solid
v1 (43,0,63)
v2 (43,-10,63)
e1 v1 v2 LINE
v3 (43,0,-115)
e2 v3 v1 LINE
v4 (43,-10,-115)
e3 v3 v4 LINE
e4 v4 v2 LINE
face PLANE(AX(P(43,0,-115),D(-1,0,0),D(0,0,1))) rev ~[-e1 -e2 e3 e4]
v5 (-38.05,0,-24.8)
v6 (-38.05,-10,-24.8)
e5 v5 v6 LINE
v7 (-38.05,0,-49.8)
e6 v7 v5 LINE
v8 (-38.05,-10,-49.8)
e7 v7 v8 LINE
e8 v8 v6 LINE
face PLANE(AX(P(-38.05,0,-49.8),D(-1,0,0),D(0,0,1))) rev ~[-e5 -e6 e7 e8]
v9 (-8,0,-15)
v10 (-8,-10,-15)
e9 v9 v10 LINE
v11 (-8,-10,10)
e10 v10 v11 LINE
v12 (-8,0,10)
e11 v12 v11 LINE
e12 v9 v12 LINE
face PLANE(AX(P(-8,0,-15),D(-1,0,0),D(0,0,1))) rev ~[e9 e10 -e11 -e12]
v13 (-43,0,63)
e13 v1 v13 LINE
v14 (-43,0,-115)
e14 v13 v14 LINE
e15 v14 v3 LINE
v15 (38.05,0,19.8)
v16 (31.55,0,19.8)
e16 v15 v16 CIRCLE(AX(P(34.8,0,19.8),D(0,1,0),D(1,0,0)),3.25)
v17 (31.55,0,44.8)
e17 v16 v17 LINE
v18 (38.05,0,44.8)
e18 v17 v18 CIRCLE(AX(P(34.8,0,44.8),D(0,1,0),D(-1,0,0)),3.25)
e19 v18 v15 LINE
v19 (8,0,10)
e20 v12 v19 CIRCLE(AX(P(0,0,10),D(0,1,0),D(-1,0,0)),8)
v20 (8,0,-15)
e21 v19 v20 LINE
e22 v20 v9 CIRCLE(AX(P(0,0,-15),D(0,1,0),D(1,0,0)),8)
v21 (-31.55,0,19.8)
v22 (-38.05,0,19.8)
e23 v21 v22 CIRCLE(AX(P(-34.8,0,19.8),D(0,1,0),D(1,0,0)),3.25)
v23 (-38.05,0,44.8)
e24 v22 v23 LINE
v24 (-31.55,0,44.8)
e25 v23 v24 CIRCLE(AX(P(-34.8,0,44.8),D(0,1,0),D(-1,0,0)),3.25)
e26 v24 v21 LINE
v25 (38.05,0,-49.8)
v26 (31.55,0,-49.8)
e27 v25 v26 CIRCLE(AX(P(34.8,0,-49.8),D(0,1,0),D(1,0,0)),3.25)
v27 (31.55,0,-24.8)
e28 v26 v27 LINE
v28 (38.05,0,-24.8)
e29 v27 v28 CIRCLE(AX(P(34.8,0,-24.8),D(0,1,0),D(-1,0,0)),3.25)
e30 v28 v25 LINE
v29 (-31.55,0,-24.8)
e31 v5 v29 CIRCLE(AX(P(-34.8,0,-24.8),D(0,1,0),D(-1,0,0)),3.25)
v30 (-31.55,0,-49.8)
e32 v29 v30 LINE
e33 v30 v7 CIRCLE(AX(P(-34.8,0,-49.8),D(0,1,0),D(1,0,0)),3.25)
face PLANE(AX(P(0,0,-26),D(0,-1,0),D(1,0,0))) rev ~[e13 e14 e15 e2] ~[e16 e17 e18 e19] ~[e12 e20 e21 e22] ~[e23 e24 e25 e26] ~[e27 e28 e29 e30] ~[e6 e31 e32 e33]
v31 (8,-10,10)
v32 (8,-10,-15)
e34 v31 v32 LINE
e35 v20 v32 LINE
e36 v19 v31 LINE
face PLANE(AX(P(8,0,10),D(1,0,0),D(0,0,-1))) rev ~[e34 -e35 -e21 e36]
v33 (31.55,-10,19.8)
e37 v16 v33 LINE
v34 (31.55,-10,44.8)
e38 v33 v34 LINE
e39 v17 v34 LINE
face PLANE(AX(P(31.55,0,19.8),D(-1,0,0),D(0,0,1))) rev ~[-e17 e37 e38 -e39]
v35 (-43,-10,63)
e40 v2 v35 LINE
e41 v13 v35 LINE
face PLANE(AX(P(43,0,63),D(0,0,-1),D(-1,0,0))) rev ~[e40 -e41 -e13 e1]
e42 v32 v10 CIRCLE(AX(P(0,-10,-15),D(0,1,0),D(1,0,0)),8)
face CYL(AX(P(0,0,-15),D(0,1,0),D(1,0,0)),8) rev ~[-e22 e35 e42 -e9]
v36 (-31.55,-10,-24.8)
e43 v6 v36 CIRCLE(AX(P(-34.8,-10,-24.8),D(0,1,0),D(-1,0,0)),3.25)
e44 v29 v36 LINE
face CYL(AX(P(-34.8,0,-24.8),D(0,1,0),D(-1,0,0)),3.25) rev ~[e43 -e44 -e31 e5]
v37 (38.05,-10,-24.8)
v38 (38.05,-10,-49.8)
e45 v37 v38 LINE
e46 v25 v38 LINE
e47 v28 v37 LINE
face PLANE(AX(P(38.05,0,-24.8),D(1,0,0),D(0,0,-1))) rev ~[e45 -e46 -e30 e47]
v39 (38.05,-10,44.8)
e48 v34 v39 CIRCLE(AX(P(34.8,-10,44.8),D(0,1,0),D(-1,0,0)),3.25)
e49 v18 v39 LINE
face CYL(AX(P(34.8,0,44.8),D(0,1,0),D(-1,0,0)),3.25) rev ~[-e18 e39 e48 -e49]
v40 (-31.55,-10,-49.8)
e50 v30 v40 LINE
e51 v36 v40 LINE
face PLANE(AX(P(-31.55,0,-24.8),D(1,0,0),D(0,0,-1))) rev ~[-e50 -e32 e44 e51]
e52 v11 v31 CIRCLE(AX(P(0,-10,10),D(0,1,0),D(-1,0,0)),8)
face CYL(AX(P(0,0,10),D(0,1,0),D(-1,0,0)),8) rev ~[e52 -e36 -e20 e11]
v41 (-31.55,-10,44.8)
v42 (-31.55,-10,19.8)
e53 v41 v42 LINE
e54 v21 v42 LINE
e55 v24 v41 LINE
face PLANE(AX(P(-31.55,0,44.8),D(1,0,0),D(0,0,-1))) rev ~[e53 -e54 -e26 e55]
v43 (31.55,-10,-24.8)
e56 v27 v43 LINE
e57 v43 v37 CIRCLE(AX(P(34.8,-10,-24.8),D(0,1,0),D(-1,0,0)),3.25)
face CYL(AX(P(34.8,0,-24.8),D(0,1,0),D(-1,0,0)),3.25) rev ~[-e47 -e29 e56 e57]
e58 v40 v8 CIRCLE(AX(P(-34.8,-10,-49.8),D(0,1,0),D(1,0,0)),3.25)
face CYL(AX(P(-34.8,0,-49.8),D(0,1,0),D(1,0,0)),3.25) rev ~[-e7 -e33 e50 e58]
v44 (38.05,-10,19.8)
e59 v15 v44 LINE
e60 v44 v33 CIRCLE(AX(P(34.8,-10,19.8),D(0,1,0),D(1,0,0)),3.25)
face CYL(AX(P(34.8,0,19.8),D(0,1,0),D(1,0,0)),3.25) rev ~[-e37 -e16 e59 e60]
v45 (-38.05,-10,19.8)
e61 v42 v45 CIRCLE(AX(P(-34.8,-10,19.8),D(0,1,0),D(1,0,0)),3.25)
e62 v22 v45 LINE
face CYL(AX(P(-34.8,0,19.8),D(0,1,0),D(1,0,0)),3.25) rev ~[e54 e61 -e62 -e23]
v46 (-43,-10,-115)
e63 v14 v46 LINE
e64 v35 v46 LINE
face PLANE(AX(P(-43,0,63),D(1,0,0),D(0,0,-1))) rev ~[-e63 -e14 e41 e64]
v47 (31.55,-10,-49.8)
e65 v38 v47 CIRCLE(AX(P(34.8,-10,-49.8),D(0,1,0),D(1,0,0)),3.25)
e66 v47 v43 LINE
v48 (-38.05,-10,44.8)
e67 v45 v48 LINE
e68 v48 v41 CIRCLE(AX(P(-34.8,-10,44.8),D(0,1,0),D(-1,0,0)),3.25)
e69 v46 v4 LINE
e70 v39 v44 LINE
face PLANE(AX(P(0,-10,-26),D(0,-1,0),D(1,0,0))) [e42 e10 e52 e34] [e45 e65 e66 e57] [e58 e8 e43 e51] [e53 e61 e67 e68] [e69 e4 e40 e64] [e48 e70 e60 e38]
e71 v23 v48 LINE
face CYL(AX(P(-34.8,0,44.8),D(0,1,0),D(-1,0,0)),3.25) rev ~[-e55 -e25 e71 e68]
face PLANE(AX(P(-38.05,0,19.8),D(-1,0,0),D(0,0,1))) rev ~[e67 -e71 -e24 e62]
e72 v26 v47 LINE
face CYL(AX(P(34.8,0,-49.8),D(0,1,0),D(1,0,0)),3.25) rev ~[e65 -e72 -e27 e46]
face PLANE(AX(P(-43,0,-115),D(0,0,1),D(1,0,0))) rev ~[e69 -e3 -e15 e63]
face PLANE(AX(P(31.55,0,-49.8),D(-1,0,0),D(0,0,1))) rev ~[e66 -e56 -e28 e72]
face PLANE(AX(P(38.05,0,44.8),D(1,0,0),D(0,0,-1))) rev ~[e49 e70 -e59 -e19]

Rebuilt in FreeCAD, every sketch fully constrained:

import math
import FreeCAD as App
import Part
import Sketcher
from FreeCAD import Vector

doc = App.newDocument("Part")
body = doc.addObject("PartDesign::Body", "Body")

# Sketch on XZ plane
sketch1 = body.newObject("Sketcher::SketchObject", "Sketch")
sketch1.AttachmentSupport = (doc.getObject("XZ_Plane"), [""])
sketch1.MapMode = "FlatFace"
sketch1.addGeometry(Part.LineSegment(Vector(-43, 63, 0), Vector(-43, -115, 0)), False)
sketch1.addGeometry(Part.LineSegment(Vector(-43, -115, 0), Vector(43, -115, 0)), False)
sketch1.addGeometry(Part.LineSegment(Vector(43, -115, 0), Vector(43, 63, 0)), False)
sketch1.addGeometry(Part.LineSegment(Vector(43, 63, 0), Vector(-43, 63, 0)), False)
sketch1.addGeometry(Part.LineSegment(Vector(-38.05, -49.8, 0), Vector(-38.05, -24.8, 0)), False)
sketch1.addGeometry(Part.ArcOfCircle(Part.Circle(Vector(-34.8, -24.8, 0), Vector(0, 0, 1), 3.25), math.radians(0), math.radians(180)), False)
sketch1.addGeometry(Part.LineSegment(Vector(-31.55, -24.8, 0), Vector(-31.55, -49.8, 0)), False)
sketch1.addGeometry(Part.ArcOfCircle(Part.Circle(Vector(-34.8, -49.8, 0), Vector(0, 0, 1), 3.25), math.radians(180), math.radians(360)), False)
sketch1.addGeometry(Part.LineSegment(Vector(31.55, -49.8, 0), Vector(31.55, -24.8, 0)), False)
sketch1.addGeometry(Part.ArcOfCircle(Part.Circle(Vector(34.8, -24.8, 0), Vector(0, 0, 1), 3.25), math.radians(0), math.radians(180)), False)
sketch1.addGeometry(Part.LineSegment(Vector(38.05, -24.8, 0), Vector(38.05, -49.8, 0)), False)
sketch1.addGeometry(Part.ArcOfCircle(Part.Circle(Vector(34.8, -49.8, 0), Vector(0, 0, 1), 3.25), math.radians(180), math.radians(360)), False)
sketch1.addGeometry(Part.ArcOfCircle(Part.Circle(Vector(-34.8, 44.8, 0), Vector(0, 0, 1), 3.25), math.radians(0), math.radians(180)), False)
sketch1.addGeometry(Part.LineSegment(Vector(-31.55, 44.8, 0), Vector(-31.55, 19.8, 0)), False)
sketch1.addGeometry(Part.ArcOfCircle(Part.Circle(Vector(-34.8, 19.8, 0), Vector(0, 0, 1), 3.25), math.radians(180), math.radians(360)), False)
sketch1.addGeometry(Part.LineSegment(Vector(-38.05, 19.8, 0), Vector(-38.05, 44.8, 0)), False)
sketch1.addGeometry(Part.ArcOfCircle(Part.Circle(Vector(0, 10, 0), Vector(0, 0, 1), 8), math.radians(0), math.radians(180)), False)
sketch1.addGeometry(Part.LineSegment(Vector(8, 10, 0), Vector(8, -15, 0)), False)
sketch1.addGeometry(Part.ArcOfCircle(Part.Circle(Vector(0, -15, 0), Vector(0, 0, 1), 8), math.radians(180), math.radians(360)), False)
sketch1.addGeometry(Part.LineSegment(Vector(-8, -15, 0), Vector(-8, 10, 0)), False)
sketch1.addGeometry(Part.LineSegment(Vector(31.55, 19.8, 0), Vector(31.55, 44.8, 0)), False)
sketch1.addGeometry(Part.ArcOfCircle(Part.Circle(Vector(34.8, 44.8, 0), Vector(0, 0, 1), 3.25), math.radians(0), math.radians(180)), False)
sketch1.addGeometry(Part.LineSegment(Vector(38.05, 44.8, 0), Vector(38.05, 19.8, 0)), False)
sketch1.addGeometry(Part.ArcOfCircle(Part.Circle(Vector(34.8, 19.8, 0), Vector(0, 0, 1), 3.25), math.radians(180), math.radians(360)), False)
sketch1.addConstraint(Sketcher.Constraint("Coincident", 0, 2, 1, 1))
sketch1.addConstraint(Sketcher.Constraint("Coincident", 1, 2, 2, 1))
sketch1.addConstraint(Sketcher.Constraint("Coincident", 2, 2, 3, 1))
sketch1.addConstraint(Sketcher.Constraint("Coincident", 3, 2, 0, 1))
sketch1.addConstraint(Sketcher.Constraint("Tangent", 4, 2, 5, 2))
sketch1.addConstraint(Sketcher.Constraint("Tangent", 5, 1, 6, 1))
sketch1.addConstraint(Sketcher.Constraint("Tangent", 6, 2, 7, 2))
sketch1.addConstraint(Sketcher.Constraint("Tangent", 7, 1, 4, 1))
sketch1.addConstraint(Sketcher.Constraint("Tangent", 8, 2, 9, 2))
sketch1.addConstraint(Sketcher.Constraint("Tangent", 9, 1, 10, 1))
sketch1.addConstraint(Sketcher.Constraint("Tangent", 10, 2, 11, 2))
sketch1.addConstraint(Sketcher.Constraint("Tangent", 11, 1, 8, 1))
sketch1.addConstraint(Sketcher.Constraint("Tangent", 12, 1, 13, 1))
sketch1.addConstraint(Sketcher.Constraint("Tangent", 13, 2, 14, 2))
sketch1.addConstraint(Sketcher.Constraint("Tangent", 14, 1, 15, 1))
sketch1.addConstraint(Sketcher.Constraint("Tangent", 15, 2, 12, 2))
sketch1.addConstraint(Sketcher.Constraint("Tangent", 16, 1, 17, 1))
sketch1.addConstraint(Sketcher.Constraint("Tangent", 17, 2, 18, 2))
sketch1.addConstraint(Sketcher.Constraint("Tangent", 18, 1, 19, 1))
sketch1.addConstraint(Sketcher.Constraint("Tangent", 19, 2, 16, 2))
sketch1.addConstraint(Sketcher.Constraint("Tangent", 20, 2, 21, 2))
sketch1.addConstraint(Sketcher.Constraint("Tangent", 21, 1, 22, 1))
sketch1.addConstraint(Sketcher.Constraint("Tangent", 22, 2, 23, 2))
sketch1.addConstraint(Sketcher.Constraint("Tangent", 23, 1, 20, 1))
sketch1.addConstraint(Sketcher.Constraint("Vertical", 0))
sketch1.addConstraint(Sketcher.Constraint("Horizontal", 1))
sketch1.addConstraint(Sketcher.Constraint("Vertical", 2))
sketch1.addConstraint(Sketcher.Constraint("Horizontal", 3))
sketch1.addConstraint(Sketcher.Constraint("Vertical", 4))
sketch1.addConstraint(Sketcher.Constraint("Vertical", 6))
sketch1.addConstraint(Sketcher.Constraint("Vertical", 8))
sketch1.addConstraint(Sketcher.Constraint("Vertical", 10))
sketch1.addConstraint(Sketcher.Constraint("Vertical", 13))
sketch1.addConstraint(Sketcher.Constraint("Vertical", 15))
sketch1.addConstraint(Sketcher.Constraint("Vertical", 17))
sketch1.addConstraint(Sketcher.Constraint("Vertical", 19))
sketch1.addConstraint(Sketcher.Constraint("Vertical", 20))
sketch1.addConstraint(Sketcher.Constraint("Vertical", 22))
sketch1.addConstraint(Sketcher.Constraint("Equal", 7, 9))
sketch1.addConstraint(Sketcher.Constraint("Equal", 11, 12))
sketch1.addConstraint(Sketcher.Constraint("Equal", 14, 21))
sketch1.addConstraint(Sketcher.Constraint("Symmetric", 5, 3, 9, 3, -2))
sketch1.addConstraint(Sketcher.Constraint("Symmetric", 12, 3, 21, 3, -2))
sketch1.addConstraint(Sketcher.Constraint("PointOnObject", 16, 3, -2))
sketch1.addConstraint(Sketcher.Constraint("Horizontal", 7, 3, 11, 3))
sketch1.addConstraint(Sketcher.Constraint("Horizontal", 14, 3, 23, 3))
sketch1.addConstraint(Sketcher.Constraint("Vertical", 7, 3, 12, 3))
sketch1.addConstraint(Sketcher.Constraint("Equal", 10, 13))
sketch1.addConstraint(Sketcher.Constraint("Equal", 15, 17))
sketch1.addConstraint(Sketcher.Constraint("Radius", 16, 8.0))
sketch1.addConstraint(Sketcher.Constraint("DistanceX", 1, 1, 1, 2, 86.0))
sketch1.addConstraint(Sketcher.Constraint("DistanceY", 0, 2, 0, 1, 178.0))
sketch1.addConstraint(Sketcher.Constraint("DistanceY", 4, 1, 4, 2, 25.0))
sketch1.addConstraint(Sketcher.Constraint("Radius", 5, 3.25))
sketch1.addConstraint(Sketcher.Constraint("DistanceY", -1, 1, 16, 3, 10.0))
sketch1.addConstraint(Sketcher.Constraint("DistanceX", 0, 2, -1, 1, 43.0))
sketch1.addConstraint(Sketcher.Constraint("DistanceY", 0, 2, -1, 1, 115.0))
sketch1.addConstraint(Sketcher.Constraint("DistanceX", 5, 3, -1, 1, 34.8))
sketch1.addConstraint(Sketcher.Constraint("DistanceY", 5, 3, -1, 1, 24.8))
sketch1.addConstraint(Sketcher.Constraint("DistanceY", -1, 1, 12, 3, 44.8))
pad1 = body.newObject("PartDesign::Pad", "Pad")
pad1.Profile = sketch1
pad1.Length = 10

doc.recompute()
